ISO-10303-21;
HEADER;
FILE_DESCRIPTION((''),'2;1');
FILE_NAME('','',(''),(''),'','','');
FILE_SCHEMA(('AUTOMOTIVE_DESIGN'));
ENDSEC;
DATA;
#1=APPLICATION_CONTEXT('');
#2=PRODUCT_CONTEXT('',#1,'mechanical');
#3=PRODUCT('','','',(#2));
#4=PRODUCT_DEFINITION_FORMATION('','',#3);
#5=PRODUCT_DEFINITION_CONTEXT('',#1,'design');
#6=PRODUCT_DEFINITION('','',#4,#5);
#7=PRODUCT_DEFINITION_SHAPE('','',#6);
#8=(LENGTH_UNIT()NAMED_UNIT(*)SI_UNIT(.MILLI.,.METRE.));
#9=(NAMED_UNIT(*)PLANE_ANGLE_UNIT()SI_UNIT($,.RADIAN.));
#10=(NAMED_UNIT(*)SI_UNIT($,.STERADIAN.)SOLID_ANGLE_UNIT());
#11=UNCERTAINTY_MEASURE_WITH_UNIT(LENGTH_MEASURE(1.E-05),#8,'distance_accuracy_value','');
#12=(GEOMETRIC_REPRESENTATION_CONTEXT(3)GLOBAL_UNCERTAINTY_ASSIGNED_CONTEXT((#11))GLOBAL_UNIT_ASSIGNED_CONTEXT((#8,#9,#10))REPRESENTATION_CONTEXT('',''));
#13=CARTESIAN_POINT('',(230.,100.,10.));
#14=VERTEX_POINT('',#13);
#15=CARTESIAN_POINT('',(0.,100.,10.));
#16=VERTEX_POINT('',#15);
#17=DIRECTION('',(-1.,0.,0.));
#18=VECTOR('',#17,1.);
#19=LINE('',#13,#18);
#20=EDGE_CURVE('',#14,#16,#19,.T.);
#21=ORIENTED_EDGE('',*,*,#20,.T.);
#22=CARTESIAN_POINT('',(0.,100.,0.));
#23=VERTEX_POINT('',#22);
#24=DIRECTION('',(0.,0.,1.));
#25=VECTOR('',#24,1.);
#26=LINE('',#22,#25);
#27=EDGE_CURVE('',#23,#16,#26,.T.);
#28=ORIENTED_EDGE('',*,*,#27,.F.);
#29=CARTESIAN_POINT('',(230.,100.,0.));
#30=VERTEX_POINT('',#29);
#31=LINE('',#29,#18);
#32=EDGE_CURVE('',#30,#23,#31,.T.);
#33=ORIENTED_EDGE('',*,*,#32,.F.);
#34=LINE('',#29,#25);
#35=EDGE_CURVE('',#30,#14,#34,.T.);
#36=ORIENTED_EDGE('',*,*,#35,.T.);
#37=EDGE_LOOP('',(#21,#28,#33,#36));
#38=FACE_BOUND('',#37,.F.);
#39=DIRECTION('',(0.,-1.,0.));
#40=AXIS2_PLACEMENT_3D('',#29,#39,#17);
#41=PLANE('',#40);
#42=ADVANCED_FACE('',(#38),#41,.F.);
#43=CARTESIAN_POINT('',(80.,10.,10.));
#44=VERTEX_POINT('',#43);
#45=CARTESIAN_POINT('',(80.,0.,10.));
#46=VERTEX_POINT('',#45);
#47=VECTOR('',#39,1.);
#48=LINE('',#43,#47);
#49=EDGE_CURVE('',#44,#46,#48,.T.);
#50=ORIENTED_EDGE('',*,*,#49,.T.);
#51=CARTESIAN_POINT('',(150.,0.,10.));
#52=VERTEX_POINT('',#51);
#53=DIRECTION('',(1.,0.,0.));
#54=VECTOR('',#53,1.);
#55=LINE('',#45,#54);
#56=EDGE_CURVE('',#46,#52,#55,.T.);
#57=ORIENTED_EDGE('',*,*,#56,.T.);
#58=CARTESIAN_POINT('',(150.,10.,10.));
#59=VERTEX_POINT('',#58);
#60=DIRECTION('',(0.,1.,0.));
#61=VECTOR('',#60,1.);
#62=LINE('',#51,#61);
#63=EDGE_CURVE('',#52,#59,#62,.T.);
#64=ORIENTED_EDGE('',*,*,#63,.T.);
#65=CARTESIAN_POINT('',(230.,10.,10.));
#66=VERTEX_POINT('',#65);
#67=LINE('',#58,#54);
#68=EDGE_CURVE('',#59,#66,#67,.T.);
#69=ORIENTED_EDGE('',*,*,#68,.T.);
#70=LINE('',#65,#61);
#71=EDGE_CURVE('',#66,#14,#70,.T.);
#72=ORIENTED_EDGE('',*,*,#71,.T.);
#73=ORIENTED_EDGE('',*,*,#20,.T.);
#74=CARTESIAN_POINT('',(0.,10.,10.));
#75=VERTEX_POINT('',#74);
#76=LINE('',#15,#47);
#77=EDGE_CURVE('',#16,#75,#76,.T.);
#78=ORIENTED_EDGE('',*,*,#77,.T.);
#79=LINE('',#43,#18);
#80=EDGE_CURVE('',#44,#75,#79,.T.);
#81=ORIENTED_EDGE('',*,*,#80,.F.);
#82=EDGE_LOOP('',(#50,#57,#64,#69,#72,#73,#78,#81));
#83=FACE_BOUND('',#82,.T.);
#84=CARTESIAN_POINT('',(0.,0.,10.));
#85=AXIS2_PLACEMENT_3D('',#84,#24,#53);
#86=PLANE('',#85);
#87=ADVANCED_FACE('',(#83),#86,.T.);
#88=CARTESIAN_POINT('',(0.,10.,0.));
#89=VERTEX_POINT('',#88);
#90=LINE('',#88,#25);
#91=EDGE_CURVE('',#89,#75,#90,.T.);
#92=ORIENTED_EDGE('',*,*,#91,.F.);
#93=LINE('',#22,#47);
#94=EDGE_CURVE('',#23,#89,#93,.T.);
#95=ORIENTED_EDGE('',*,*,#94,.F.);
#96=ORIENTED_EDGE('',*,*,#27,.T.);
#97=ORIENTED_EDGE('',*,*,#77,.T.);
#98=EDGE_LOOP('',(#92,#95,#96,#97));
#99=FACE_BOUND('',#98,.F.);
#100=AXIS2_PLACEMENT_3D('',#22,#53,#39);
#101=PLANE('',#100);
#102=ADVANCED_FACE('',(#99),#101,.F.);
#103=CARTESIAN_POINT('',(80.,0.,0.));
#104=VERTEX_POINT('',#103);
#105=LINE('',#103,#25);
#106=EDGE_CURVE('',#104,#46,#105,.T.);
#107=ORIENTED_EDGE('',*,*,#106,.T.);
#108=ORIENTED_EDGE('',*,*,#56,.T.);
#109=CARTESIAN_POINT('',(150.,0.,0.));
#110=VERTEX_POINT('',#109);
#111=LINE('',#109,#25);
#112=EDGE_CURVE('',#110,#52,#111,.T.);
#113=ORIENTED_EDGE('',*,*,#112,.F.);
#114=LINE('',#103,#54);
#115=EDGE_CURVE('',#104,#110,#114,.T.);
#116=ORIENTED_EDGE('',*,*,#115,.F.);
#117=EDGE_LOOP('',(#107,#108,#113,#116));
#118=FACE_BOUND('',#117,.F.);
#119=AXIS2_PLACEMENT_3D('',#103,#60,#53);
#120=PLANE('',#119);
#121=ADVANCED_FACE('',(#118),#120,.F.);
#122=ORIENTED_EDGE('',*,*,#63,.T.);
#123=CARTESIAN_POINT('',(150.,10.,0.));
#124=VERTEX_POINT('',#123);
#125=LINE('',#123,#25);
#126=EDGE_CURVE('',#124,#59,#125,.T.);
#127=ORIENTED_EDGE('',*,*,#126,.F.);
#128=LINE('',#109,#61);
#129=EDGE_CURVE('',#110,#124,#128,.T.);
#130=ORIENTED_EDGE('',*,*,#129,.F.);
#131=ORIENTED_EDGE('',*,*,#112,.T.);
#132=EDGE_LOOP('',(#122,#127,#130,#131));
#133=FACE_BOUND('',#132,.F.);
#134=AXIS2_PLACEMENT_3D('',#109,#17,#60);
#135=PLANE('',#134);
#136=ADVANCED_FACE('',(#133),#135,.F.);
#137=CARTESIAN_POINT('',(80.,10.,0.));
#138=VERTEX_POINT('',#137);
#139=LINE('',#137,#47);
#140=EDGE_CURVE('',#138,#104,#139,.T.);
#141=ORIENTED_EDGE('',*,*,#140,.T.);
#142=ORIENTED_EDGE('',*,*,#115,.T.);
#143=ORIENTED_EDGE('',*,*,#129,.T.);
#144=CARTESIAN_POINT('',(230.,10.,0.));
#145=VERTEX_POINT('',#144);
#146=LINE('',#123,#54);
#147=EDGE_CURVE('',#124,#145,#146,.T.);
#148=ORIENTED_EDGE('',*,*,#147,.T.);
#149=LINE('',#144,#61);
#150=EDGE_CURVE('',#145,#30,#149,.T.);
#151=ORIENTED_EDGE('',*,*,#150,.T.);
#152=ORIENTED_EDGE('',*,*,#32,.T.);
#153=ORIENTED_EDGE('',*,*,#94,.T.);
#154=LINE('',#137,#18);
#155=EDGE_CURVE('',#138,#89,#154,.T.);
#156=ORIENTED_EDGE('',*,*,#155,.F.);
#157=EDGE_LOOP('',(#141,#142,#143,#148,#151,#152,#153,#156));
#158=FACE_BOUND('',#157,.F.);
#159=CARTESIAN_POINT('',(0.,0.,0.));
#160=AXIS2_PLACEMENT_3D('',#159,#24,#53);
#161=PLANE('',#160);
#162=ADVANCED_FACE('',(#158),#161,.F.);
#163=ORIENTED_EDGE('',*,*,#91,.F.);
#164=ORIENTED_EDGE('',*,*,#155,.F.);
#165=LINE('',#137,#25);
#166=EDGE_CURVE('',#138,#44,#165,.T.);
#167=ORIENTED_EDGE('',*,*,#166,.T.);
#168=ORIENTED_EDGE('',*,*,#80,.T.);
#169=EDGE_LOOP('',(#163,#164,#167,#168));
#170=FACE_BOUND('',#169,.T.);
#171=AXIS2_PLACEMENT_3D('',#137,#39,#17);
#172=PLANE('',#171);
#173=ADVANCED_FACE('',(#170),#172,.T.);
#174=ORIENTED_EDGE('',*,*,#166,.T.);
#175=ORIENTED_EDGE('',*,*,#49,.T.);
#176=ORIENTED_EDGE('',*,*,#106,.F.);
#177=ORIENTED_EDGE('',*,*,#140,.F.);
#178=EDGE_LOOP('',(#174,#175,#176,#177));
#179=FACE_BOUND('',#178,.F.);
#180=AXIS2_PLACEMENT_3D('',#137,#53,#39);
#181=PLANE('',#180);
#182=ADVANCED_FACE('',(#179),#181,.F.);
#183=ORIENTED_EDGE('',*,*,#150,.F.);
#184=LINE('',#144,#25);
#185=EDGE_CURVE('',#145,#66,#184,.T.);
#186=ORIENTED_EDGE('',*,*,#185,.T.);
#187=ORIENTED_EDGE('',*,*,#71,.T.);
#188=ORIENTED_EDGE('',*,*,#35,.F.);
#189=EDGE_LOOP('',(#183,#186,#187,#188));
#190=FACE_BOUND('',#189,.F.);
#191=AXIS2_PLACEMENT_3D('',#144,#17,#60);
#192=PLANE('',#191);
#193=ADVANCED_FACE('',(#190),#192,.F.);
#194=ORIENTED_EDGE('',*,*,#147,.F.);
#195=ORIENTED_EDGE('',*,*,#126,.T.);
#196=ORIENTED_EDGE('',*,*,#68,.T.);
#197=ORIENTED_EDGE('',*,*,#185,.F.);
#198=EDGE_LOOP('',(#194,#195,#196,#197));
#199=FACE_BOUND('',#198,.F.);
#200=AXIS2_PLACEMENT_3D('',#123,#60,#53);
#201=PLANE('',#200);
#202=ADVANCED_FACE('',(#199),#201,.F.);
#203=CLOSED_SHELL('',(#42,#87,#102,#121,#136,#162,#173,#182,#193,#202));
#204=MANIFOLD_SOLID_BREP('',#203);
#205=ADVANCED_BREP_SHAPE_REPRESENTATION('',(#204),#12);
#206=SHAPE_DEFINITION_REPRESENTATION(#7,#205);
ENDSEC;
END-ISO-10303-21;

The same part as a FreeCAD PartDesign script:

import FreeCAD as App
import Part
import Sketcher
from FreeCAD import Vector

doc = App.newDocument("Part")
params = doc.addObject("Spreadsheet::Sheet", "Params")
for row, (alias, value) in enumerate([
    ("sketch1_width", "230 mm"),
    ("sketch1_height", "10 mm"),
    ("sketch1_width2", "70 mm"),
    ("pad1_length", "10 mm"),
], start=1):
    params.set(f"A{row}", alias)
    params.set(f"B{row}", "=" + value)
    params.setAlias(f"B{row}", alias)

body = doc.addObject("PartDesign::Body", "Body")

sketch1 = body.newObject("Sketcher::SketchObject", "Sketch")
sketch1.AttachmentSupport = (doc.getObject("XY_Plane"), [""])
sketch1.MapMode = "FlatFace"
sketch1.addGeometry([
    Part.LineSegment(Vector(80, 10, 0), Vector(80, 0, 0)),
    Part.LineSegment(Vector(80, 0, 0), Vector(150, 0, 0)),
    Part.LineSegment(Vector(150, 0, 0), Vector(150, 10, 0)),
    Part.LineSegment(Vector(150, 10, 0), Vector(230, 10, 0)),
    Part.LineSegment(Vector(230, 10, 0), Vector(230, 100, 0)),
    Part.LineSegment(Vector(230, 100, 0), Vector(0, 100, 0)),
    Part.LineSegment(Vector(0, 100, 0), Vector(0, 10, 0)),
    Part.LineSegment(Vector(0, 10, 0), Vector(80, 10, 0)),
], False)
sketch1.addConstraint([
    Sketcher.Constraint("Coincident", 0, 2, 1, 1),
    Sketcher.Constraint("Coincident", 1, 2, 2, 1),
    Sketcher.Constraint("Coincident", 2, 2, 3, 1),
    Sketcher.Constraint("Coincident", 3, 2, 4, 1),
    Sketcher.Constraint("Coincident", 4, 2, 5, 1),
    Sketcher.Constraint("Coincident", 5, 2, 6, 1),
    Sketcher.Constraint("Coincident", 6, 2, 7, 1),
    Sketcher.Constraint("Coincident", 7, 2, 0, 1),
    Sketcher.Constraint("Vertical", 0),
    Sketcher.Constraint("Horizontal", 1),
    Sketcher.Constraint("Vertical", 2),
    Sketcher.Constraint("Horizontal", 3),
    Sketcher.Constraint("Vertical", 4),
    Sketcher.Constraint("Horizontal", 5),
    Sketcher.Constraint("Vertical", 6),
    Sketcher.Constraint("Horizontal", 7),
    Sketcher.Constraint("PointOnObject", 0, 2, -1),
    Sketcher.Constraint("PointOnObject", 5, 2, -2),
    Sketcher.Constraint("Horizontal", 3, 2, 6, 2),
    Sketcher.Constraint("Equal", 3, 7),
    Sketcher.Constraint("DistanceX", 5, 2, 5, 1, 230.0),
    Sketcher.Constraint("DistanceY", 0, 2, 0, 1, 10.0),
    Sketcher.Constraint("DistanceY", -1, 1, 4, 2, 100.0),
    Sketcher.Constraint("DistanceX", 1, 1, 1, 2, 70.0),
])
sketch1.setExpression("Constraints[20]", "Params.sketch1_width")
sketch1.setExpression("Constraints[21]", "Params.sketch1_height")
sketch1.setExpression("Constraints[23]", "Params.sketch1_width2")
pad1 = body.newObject("PartDesign::Pad", "Pad")
pad1.Profile = sketch1
pad1.setExpression("Length", "Params.pad1_length")

doc.recompute()
